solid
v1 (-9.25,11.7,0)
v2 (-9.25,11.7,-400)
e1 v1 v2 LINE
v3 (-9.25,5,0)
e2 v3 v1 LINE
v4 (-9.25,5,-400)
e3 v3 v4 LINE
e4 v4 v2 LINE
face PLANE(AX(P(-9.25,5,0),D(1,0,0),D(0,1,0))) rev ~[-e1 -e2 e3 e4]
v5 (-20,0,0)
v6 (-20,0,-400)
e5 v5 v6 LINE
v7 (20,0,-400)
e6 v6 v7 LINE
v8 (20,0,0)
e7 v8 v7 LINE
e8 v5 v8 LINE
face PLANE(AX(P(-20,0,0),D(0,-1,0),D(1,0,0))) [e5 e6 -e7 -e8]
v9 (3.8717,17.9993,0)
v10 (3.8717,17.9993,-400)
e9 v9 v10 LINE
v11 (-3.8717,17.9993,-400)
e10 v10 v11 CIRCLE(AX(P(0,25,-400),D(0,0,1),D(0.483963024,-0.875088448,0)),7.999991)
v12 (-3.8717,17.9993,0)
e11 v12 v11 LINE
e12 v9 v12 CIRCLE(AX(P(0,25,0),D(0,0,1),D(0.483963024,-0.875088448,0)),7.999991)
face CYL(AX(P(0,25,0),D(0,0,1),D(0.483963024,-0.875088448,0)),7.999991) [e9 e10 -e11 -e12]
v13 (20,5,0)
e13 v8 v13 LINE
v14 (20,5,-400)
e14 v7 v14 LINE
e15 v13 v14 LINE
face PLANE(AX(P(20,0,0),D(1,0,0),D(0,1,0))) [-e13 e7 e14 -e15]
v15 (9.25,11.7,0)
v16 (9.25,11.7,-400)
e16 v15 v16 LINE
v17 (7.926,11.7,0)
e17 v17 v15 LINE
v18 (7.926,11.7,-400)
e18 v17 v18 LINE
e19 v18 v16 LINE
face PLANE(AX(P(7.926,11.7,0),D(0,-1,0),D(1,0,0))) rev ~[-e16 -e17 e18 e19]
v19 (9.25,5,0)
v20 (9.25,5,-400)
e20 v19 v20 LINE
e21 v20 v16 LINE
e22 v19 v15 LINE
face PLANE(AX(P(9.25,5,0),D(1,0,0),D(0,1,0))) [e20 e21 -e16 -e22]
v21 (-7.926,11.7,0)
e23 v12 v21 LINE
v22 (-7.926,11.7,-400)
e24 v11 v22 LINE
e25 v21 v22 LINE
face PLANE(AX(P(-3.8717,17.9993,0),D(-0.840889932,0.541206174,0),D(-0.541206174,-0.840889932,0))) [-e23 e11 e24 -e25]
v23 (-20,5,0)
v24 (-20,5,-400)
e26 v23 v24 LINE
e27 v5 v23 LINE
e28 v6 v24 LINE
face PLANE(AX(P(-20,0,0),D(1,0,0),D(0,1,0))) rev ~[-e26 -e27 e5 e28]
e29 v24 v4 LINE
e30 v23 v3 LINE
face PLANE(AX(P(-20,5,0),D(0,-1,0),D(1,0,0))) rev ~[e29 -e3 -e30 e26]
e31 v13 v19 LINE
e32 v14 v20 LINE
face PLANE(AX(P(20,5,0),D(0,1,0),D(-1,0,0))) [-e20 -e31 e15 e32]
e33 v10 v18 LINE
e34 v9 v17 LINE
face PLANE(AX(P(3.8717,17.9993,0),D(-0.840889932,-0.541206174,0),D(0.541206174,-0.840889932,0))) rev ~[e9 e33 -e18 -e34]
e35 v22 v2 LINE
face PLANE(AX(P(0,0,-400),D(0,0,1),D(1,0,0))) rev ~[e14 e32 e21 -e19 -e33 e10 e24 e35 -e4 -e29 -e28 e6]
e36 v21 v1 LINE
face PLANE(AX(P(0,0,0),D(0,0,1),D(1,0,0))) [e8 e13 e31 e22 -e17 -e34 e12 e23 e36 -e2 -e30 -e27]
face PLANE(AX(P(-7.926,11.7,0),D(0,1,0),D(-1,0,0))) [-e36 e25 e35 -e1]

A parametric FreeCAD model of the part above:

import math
import FreeCAD as App
import Part
import Sketcher

V = App.Vector
Q = App.Units.Quantity

doc = App.newDocument("Part")
params = doc.addObject("Spreadsheet::Sheet", "Params")
for row, (alias, value) in enumerate([
    ("sketch1_radius", "8 mm"),
    ("sketch1_width", "40 mm"),
    ("sketch1_height", "5 mm"),
    ("sketch1_height2", "6.7 mm"),
    ("sketch1_width2", "10.75 mm"),
    ("pad1_length", "400 mm"),
], start=1):
    params.set(f"A{row}", alias)
    params.set(f"B{row}", "=" + value)
    params.setAlias(f"B{row}", alias)

body = doc.addObject("PartDesign::Body", "Body")

# Sketch on XY plane
sketch1 = doc.addObject("Sketcher::SketchObject", "Sketch")
body.addObject(sketch1)
sketch1.AttachmentSupport = (doc.XY_Plane, [""])
sketch1.MapMode = "FlatFace"
sketch1.addGeometry([
    Part.LineSegment(V(-20, 5, 0), V(-20, 0, 0)),  # 0
    Part.LineSegment(V(-20, 0, 0), V(20, 0, 0)),  # 1
    Part.LineSegment(V(20, 0, 0), V(20, 5, 0)),  # 2
    Part.LineSegment(V(20, 5, 0), V(9.2, 5, 0)),  # 3
    Part.LineSegment(V(9.2, 5, 0), V(9.2, 11.7, 0)),  # 4
    Part.LineSegment(V(9.2, 11.7, 0), V(7.9, 11.7, 0)),  # 5
    Part.LineSegment(V(7.9, 11.7, 0), V(3.9, 18, 0)),  # 6
    Part.ArcOfCircle(Part.Circle(V(0, 25, 0), V(0, 0, 1), 8), math.radians(-61), math.radians(241)),  # 7
    Part.LineSegment(V(-3.9, 18, 0), V(-7.9, 11.7, 0)),  # 8
    Part.LineSegment(V(-7.9, 11.7, 0), V(-9.2, 11.7, 0)),  # 9
    Part.LineSegment(V(-9.2, 11.7, 0), V(-9.2, 5, 0)),  # 10
    Part.LineSegment(V(-9.2, 5, 0), V(-20, 5, 0)),  # 11
], False)
sketch1.addConstraint([
    Sketcher.Constraint("Coincident", 0, 2, 1, 1),
    Sketcher.Constraint("Coincident", 1, 2, 2, 1),
    Sketcher.Constraint("Coincident", 2, 2, 3, 1),
    Sketcher.Constraint("Coincident", 3, 2, 4, 1),
    Sketcher.Constraint("Coincident", 4, 2, 5, 1),
    Sketcher.Constraint("Coincident", 5, 2, 6, 1),
    Sketcher.Constraint("Coincident", 6, 2, 7, 1),
    Sketcher.Constraint("Coincident", 7, 2, 8, 1),
    Sketcher.Constraint("Coincident", 8, 2, 9, 1),
    Sketcher.Constraint("Coincident", 9, 2, 10, 1),
    Sketcher.Constraint("Coincident", 10, 2, 11, 1),
    Sketcher.Constraint("Coincident", 11, 2, 0, 1),
    Sketcher.Constraint("Vertical", 0),
    Sketcher.Constraint("Horizontal", 1),
    Sketcher.Constraint("Vertical", 2),
    Sketcher.Constraint("Horizontal", 3),
    Sketcher.Constraint("Vertical", 4),
    Sketcher.Constraint("Horizontal", 5),
    Sketcher.Constraint("Horizontal", 9),
    Sketcher.Constraint("Vertical", 10),
    Sketcher.Constraint("Horizontal", 11),
    Sketcher.Constraint("Symmetric", 0, 2, 1, 2, -1, 1),
    Sketcher.Constraint("Symmetric", 6, 2, 7, 2, -2),
    Sketcher.Constraint("Symmetric", 5, 2, 8, 2, -2),
    Sketcher.Constraint("Symmetric", 3, 2, 10, 2, -2),
    Sketcher.Constraint("Radius", 7, Q("8 mm")),
    Sketcher.Constraint("DistanceX", 1, 1, 1, 2, Q("40 mm")),
    Sketcher.Constraint("DistanceY", 0, 2, 0, 1, Q("5 mm")),
    Sketcher.Constraint("DistanceY", 4, 1, 4, 2, Q("6.7 mm")),
    Sketcher.Constraint("DistanceY", -1, 1, 7, 3, Q("25 mm")),
    Sketcher.Constraint("DistanceX", 3, 2, 3, 1, Q("10.75 mm")),
    Sketcher.Constraint("DistanceX", 5, 2, 5, 1, Q("1.324 mm")),
    Sketcher.Constraint("Distance", 6, Q("7.4912 mm")),
])
sketch1.setExpression("Constraints[25]", "Params.sketch1_radius")
sketch1.setExpression("Constraints[26]", "Params.sketch1_width")
sketch1.setExpression("Constraints[27]", "Params.sketch1_height")
sketch1.setExpression("Constraints[28]", "Params.sketch1_height2")
sketch1.setExpression("Constraints[30]", "Params.sketch1_width2")
pad1 = doc.addObject("PartDesign::Pad", "Pad")
body.addObject(pad1)
pad1.Profile = sketch1
pad1.setExpression("Length", "Params.pad1_length")
pad1.Reversed = True

doc.recompute()
